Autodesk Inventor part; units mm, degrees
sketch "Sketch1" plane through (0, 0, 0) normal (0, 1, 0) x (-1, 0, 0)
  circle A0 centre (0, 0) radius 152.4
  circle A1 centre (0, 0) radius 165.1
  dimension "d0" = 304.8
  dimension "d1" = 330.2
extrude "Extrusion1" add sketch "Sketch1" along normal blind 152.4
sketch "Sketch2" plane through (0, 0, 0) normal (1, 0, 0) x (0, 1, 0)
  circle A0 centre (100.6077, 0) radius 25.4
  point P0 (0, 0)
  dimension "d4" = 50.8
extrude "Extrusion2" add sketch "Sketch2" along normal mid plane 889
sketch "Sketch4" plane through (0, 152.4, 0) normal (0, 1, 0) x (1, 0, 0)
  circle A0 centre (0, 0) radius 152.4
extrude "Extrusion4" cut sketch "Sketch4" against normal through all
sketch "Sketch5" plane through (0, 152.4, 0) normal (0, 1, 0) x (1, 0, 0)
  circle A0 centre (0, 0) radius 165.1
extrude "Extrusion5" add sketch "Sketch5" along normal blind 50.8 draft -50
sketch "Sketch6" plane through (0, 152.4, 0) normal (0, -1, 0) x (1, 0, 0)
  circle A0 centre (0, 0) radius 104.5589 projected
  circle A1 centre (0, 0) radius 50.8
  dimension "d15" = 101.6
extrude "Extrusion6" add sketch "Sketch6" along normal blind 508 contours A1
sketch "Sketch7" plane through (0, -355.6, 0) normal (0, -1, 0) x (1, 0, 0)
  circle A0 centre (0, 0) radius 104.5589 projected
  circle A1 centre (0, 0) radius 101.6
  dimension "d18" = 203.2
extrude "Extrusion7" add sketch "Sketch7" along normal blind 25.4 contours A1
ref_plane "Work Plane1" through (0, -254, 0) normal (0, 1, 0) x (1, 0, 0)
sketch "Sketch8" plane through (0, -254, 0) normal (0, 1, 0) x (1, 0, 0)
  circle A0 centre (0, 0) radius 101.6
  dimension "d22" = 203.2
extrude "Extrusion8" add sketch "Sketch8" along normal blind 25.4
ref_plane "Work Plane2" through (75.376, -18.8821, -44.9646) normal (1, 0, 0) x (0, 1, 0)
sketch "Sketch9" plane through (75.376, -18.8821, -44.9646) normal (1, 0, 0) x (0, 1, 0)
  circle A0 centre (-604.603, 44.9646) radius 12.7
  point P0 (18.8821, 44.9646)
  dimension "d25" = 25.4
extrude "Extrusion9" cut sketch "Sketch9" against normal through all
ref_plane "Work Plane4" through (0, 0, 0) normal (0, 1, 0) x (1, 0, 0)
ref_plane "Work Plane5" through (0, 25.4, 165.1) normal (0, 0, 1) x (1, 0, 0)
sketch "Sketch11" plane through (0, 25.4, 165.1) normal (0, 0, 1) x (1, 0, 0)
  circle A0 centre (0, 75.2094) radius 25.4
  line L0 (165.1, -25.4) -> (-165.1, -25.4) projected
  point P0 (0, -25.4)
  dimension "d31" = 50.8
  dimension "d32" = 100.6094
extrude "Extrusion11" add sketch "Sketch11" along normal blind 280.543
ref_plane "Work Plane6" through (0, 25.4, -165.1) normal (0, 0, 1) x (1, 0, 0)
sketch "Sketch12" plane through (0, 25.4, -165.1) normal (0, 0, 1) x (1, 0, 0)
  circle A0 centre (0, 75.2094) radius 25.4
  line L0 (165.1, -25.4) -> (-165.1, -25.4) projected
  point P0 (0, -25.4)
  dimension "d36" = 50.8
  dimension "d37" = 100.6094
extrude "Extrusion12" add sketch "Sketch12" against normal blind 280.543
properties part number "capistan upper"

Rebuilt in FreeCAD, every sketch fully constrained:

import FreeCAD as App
import Part
import Sketcher
from FreeCAD import Vector
Q = App.Units.Quantity

doc = App.newDocument("Part")
body = doc.addObject("PartDesign::Body", "Body")
body.AllowCompound = True

# Sketch on XZ plane
sketch1 = body.newObject("Sketcher::SketchObject", "Sketch")
sketch1.AttachmentSupport = (doc.getObject("XZ_Plane"), [""])
sketch1.MapMode = "FlatFace"
sketch1.addGeometry(Part.Circle(Vector(0, 0, 0), Vector(0, 0, 1), 165), False)
sketch1.addGeometry(Part.Circle(Vector(0, 0, 0), Vector(0, 0, 1), 152), False)
sketch1.addConstraint(Sketcher.Constraint("Coincident", 0, 3, -1, 1))
sketch1.addConstraint(Sketcher.Constraint("Coincident", 1, 3, -1, 1))
sketch1.addConstraint(Sketcher.Constraint("Diameter", 0, Q("13 in")))
sketch1.addConstraint(Sketcher.Constraint("Diameter", 1, Q("12 in")))
pad1 = body.newObject("PartDesign::Pad", "Pad")
pad1.Profile = sketch1
pad1.Length = Q("6 in")
pad1.Reversed = True

# Sketch on YZ plane
sketch2 = body.newObject("Sketcher::SketchObject", "Sketch001")
sketch2.AttachmentSupport = (doc.getObject("YZ_Plane"), [""])
sketch2.MapMode = "FlatFace"
sketch2.addGeometry(Part.Circle(Vector(101, 0, 0), Vector(0, 0, 1), 25), False)
sketch2.addConstraint(Sketcher.Constraint("PointOnObject", 0, 3, -1))
sketch2.addConstraint(Sketcher.Constraint("Diameter", 0, Q("2 in")))
sketch2.addConstraint(Sketcher.Constraint("DistanceX", -1, 1, 0, 3, 100.6077))
pad2 = body.newObject("PartDesign::Pad", "Pad001")
pad2.Profile = sketch2
pad2.Length = Q("35 in")
pad2.Midplane = True

# Sketch on XZ plane
sketch3 = body.newObject("Sketcher::SketchObject", "Sketch002")
sketch3.AttachmentSupport = (doc.getObject("XZ_Plane"), [""])
sketch3.MapMode = "FlatFace"
sketch3.AttachmentOffset = App.Placement(Vector(0, 0, -6 * 25.4), App.Rotation())
sketch3.addGeometry(Part.Circle(Vector(0, 0, 0), Vector(0, 0, 1), 152), False)
sketch3.addConstraint(Sketcher.Constraint("Coincident", 0, 3, -1, 1))
sketch3.addConstraint(Sketcher.Constraint("Diameter", 0, Q("12 in")))
pocket1 = body.newObject("PartDesign::Pocket", "Pocket")
pocket1.Profile = sketch3
pocket1.Type = "ThroughAll"
pocket1.Reversed = True

# Sketch on XZ plane
sketch4 = body.newObject("Sketcher::SketchObject", "Sketch003")
sketch4.AttachmentSupport = (doc.getObject("XZ_Plane"), [""])
sketch4.MapMode = "FlatFace"
sketch4.AttachmentOffset = App.Placement(Vector(0, 0, -6 * 25.4), App.Rotation())
sketch4.addGeometry(Part.Circle(Vector(0, 0, 0), Vector(0, 0, 1), 165), False)
sketch4.addConstraint(Sketcher.Constraint("Coincident", 0, 3, -1, 1))
sketch4.addConstraint(Sketcher.Constraint("Diameter", 0, Q("13 in")))
pad3 = body.newObject("PartDesign::Pad", "Pad002")
pad3.Profile = sketch4
pad3.Length = Q("2 in")
pad3.Reversed = True
pad3.TaperAngle = -50

# Sketch on XZ plane
sketch5 = body.newObject("Sketcher::SketchObject", "Sketch004")
sketch5.AttachmentSupport = (doc.getObject("XZ_Plane"), [""])
sketch5.MapMode = "FlatFace"
sketch5.AttachmentOffset = App.Placement(Vector(0, 0, -6 * 25.4), App.Rotation())
sketch5.addGeometry(Part.Circle(Vector(0, 0, 0), Vector(0, 0, 1), 51), False)
sketch5.addConstraint(Sketcher.Constraint("Coincident", 0, 3, -1, 1))
sketch5.addConstraint(Sketcher.Constraint("Diameter", 0, Q("4 in")))
pad4 = body.newObject("PartDesign::Pad", "Pad003")
pad4.Profile = sketch5
pad4.Length = Q("20 in")

# Sketch on XZ plane
sketch6 = body.newObject("Sketcher::SketchObject", "Sketch005")
sketch6.AttachmentSupport = (doc.getObject("XZ_Plane"), [""])
sketch6.MapMode = "FlatFace"
sketch6.AttachmentOffset = App.Placement(Vector(0, 0, 14 * 25.4), App.Rotation())
sketch6.addGeometry(Part.Circle(Vector(0, 0, 0), Vector(0, 0, 1), 102), False)
sketch6.addConstraint(Sketcher.Constraint("Coincident", 0, 3, -1, 1))
sketch6.addConstraint(Sketcher.Constraint("Diameter", 0, Q("8 in")))
pad5 = body.newObject("PartDesign::Pad", "Pad004")
pad5.Profile = sketch6
pad5.Length = Q("1 in")

# Sketch on XZ plane
sketch7 = body.newObject("Sketcher::SketchObject", "Sketch006")
sketch7.AttachmentSupport = (doc.getObject("XZ_Plane"), [""])
sketch7.MapMode = "FlatFace"
sketch7.AttachmentOffset = App.Placement(Vector(0, 0, 10 * 25.4), App.Rotation())
sketch7.addGeometry(Part.Circle(Vector(0, 0, 0), Vector(0, 0, 1), 102), False)
sketch7.addConstraint(Sketcher.Constraint("Coincident", 0, 3, -1, 1))
sketch7.addConstraint(Sketcher.Constraint("Diameter", 0, Q("8 in")))
pad6 = body.newObject("PartDesign::Pad", "Pad005")
pad6.Profile = sketch7
pad6.Length = Q("1 in")
pad6.Reversed = True

# Sketch on YZ plane
sketch8 = body.newObject("Sketcher::SketchObject", "Sketch007")
sketch8.AttachmentSupport = (doc.getObject("YZ_Plane"), [""])
sketch8.MapMode = "FlatFace"
sketch8.AttachmentOffset = App.Placement(Vector(0, 0, 75.376), App.Rotation())
sketch8.addGeometry(Part.Circle(Vector(-623, 0, 0), Vector(0, 0, 1), 13), False)
sketch8.addConstraint(Sketcher.Constraint("PointOnObject", 0, 3, -1))
sketch8.addConstraint(Sketcher.Constraint("Diameter", 0, Q("1 in")))
sketch8.addConstraint(Sketcher.Constraint("DistanceX", 0, 3, -1, 1, 623.485))
pocket2 = body.newObject("PartDesign::Pocket", "Pocket001")
pocket2.Profile = sketch8
pocket2.Type = "ThroughAll"

# Sketch on XY plane
sketch9 = body.newObject("Sketcher::SketchObject", "Sketch008")
sketch9.AttachmentSupport = (doc.getObject("XY_Plane"), [""])
sketch9.MapMode = "FlatFace"
sketch9.AttachmentOffset = App.Placement(Vector(0, 0, 6.5 * 25.4), App.Rotation())
sketch9.addGeometry(Part.Circle(Vector(0, 101, 0), Vector(0, 0, 1), 25), False)
sketch9.addConstraint(Sketcher.Constraint("PointOnObject", 0, 3, -2))
sketch9.addConstraint(Sketcher.Constraint("Diameter", 0, Q("2 in")))
sketch9.addConstraint(Sketcher.Constraint("DistanceY", -1, 1, 0, 3, Q("3.961 in")))
pad7 = body.newObject("PartDesign::Pad", "Pad006")
pad7.Profile = sketch9
pad7.Length = Q("11.045 in")

# Sketch on XY plane
sketch10 = body.newObject("Sketcher::SketchObject", "Sketch009")
sketch10.AttachmentSupport = (doc.getObject("XY_Plane"), [""])
sketch10.MapMode = "FlatFace"
sketch10.AttachmentOffset = App.Placement(Vector(0, 0, -6.5 * 25.4), App.Rotation())
sketch10.addGeometry(Part.Circle(Vector(0, 101, 0), Vector(0, 0, 1), 25), False)
sketch10.addConstraint(Sketcher.Constraint("PointOnObject", 0, 3, -2))
sketch10.addConstraint(Sketcher.Constraint("Diameter", 0, Q("2 in")))
sketch10.addConstraint(Sketcher.Constraint("DistanceY", -1, 1, 0, 3, Q("3.961 in")))
pad8 = body.newObject("PartDesign::Pad", "Pad007")
pad8.Profile = sketch10
pad8.Length = Q("11.045 in")
pad8.Reversed = True

doc.recompute()
